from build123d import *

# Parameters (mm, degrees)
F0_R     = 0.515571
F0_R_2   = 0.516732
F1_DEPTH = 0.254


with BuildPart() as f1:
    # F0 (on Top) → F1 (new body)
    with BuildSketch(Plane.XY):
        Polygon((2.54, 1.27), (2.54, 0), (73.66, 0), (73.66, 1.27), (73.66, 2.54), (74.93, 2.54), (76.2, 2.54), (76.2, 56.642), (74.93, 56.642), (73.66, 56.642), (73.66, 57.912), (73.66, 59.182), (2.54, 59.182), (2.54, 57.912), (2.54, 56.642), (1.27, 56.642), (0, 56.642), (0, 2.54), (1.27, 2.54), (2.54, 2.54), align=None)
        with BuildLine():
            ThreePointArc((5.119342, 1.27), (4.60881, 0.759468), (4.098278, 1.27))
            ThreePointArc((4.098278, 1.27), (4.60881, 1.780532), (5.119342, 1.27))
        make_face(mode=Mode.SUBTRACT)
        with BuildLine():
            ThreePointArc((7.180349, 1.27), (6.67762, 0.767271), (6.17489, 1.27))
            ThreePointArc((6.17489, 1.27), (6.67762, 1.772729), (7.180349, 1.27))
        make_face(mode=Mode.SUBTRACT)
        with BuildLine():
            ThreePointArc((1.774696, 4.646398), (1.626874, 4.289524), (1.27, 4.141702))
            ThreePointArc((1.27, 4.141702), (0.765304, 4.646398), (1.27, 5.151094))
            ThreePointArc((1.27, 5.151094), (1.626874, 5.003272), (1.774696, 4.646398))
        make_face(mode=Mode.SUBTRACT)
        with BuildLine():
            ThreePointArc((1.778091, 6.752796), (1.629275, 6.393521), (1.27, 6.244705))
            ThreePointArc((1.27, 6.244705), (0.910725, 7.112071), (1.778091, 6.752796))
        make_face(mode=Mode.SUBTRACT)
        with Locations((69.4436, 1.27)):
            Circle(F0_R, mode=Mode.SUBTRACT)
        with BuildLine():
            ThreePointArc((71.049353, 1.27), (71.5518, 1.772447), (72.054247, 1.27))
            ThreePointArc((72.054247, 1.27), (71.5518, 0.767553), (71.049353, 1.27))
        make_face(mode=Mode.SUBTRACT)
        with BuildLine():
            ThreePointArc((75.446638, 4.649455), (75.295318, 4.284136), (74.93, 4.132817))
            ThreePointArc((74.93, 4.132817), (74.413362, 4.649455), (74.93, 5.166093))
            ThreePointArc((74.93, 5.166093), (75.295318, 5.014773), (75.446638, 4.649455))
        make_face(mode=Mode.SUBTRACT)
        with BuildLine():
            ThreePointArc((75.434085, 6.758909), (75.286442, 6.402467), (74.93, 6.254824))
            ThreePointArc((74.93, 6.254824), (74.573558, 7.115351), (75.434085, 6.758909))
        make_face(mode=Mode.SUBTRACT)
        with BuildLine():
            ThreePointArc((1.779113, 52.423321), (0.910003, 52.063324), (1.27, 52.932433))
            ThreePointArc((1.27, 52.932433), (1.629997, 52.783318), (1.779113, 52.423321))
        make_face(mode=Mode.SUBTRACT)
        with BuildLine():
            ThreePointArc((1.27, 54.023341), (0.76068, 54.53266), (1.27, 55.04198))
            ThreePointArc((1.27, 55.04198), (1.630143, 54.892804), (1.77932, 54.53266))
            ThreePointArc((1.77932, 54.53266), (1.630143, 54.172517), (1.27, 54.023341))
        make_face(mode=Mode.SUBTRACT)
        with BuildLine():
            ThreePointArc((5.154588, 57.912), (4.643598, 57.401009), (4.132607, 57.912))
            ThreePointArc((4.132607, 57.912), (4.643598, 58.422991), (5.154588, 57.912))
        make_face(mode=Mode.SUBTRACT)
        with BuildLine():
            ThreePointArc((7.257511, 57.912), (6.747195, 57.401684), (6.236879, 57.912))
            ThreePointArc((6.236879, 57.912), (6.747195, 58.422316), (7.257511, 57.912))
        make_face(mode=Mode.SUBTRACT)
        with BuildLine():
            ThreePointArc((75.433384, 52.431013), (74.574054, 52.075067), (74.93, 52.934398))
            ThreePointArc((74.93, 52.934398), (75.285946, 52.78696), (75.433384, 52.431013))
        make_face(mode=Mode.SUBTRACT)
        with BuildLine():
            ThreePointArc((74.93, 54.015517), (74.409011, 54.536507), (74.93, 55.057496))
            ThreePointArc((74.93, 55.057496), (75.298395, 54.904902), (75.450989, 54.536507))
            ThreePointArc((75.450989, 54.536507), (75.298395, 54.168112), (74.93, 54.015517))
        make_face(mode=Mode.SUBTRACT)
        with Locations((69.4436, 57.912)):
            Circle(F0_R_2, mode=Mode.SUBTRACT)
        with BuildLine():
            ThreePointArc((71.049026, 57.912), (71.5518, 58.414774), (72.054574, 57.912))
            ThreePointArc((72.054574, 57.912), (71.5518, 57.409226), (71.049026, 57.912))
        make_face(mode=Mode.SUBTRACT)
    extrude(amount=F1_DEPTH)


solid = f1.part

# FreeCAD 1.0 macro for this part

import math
import FreeCAD as App
import Part
import Sketcher
from FreeCAD import Vector
Q = App.Units.Quantity

doc = App.newDocument("Part")
body = doc.addObject("PartDesign::Body", "Body")

sketch1 = body.newObject("Sketcher::SketchObject", "Sketch")
sketch1.AttachmentSupport = (doc.getObject("XY_Plane"), [""])
sketch1.MapMode = "FlatFace"
sketch1.addGeometry([
    Part.LineSegment(Vector(2.5, 0, 0), Vector(73.7, 0, 0)),
    Part.LineSegment(Vector(73.7, 0, 0), Vector(73.7, 2.5, 0)),
    Part.LineSegment(Vector(73.7, 2.5, 0), Vector(76.2, 2.5, 0)),
    Part.LineSegment(Vector(76.2, 2.5, 0), Vector(76.2, 56.6, 0)),
    Part.LineSegment(Vector(76.2, 56.6, 0), Vector(73.7, 56.6, 0)),
    Part.LineSegment(Vector(73.7, 56.6, 0), Vector(73.7, 59.2, 0)),
    Part.LineSegment(Vector(73.7, 59.2, 0), Vector(2.5, 59.2, 0)),
    Part.LineSegment(Vector(2.5, 59.2, 0), Vector(2.5, 56.6, 0)),
    Part.LineSegment(Vector(2.5, 56.6, 0), Vector(0, 56.6, 0)),
    Part.LineSegment(Vector(0, 56.6, 0), Vector(0, 2.5, 0)),
    Part.LineSegment(Vector(0, 2.5, 0), Vector(2.5, 2.5, 0)),
    Part.LineSegment(Vector(2.5, 2.5, 0), Vector(2.5, 0, 0)),
    Part.Circle(Vector(4.6, 1.3, 0), Vector(0, 0, 1), 0.5),
    Part.ArcOfCircle(Part.Circle(Vector(6.7, 1.3, 0), Vector(0, 0, 1), 0.5), math.radians(0), math.radians(180)),
    Part.ArcOfCircle(Part.Circle(Vector(6.7, 1.3, 0), Vector(0, 0, 1), 0.5), math.radians(-180), math.radians(0)),
    Part.ArcOfCircle(Part.Circle(Vector(1.3, 4.6, 0), Vector(0, 0, 1), 0.5), math.radians(0), math.radians(90)),
    Part.ArcOfCircle(Part.Circle(Vector(1.3, 4.6, 0), Vector(0, 0, 1), 0.5), math.radians(-90), math.radians(0)),
    Part.ArcOfCircle(Part.Circle(Vector(1.3, 4.6, 0), Vector(0, 0, 1), 0.5), math.radians(90), math.radians(270)),
    Part.ArcOfCircle(Part.Circle(Vector(1.3, 6.8, 0), Vector(0, 0, 1), 0.5), math.radians(0), math.radians(270)),
    Part.ArcOfCircle(Part.Circle(Vector(1.3, 6.8, 0), Vector(0, 0, 1), 0.5), math.radians(-90), math.radians(0)),
    Part.Circle(Vector(69.4, 1.3, 0), Vector(0, 0, 1), 0.5),
    Part.Circle(Vector(71.6, 1.3, 0), Vector(0, 0, 1), 0.5),
    Part.ArcOfCircle(Part.Circle(Vector(74.9, 4.6, 0), Vector(0, 0, 1), 0.5), math.radians(0), math.radians(90)),
    Part.ArcOfCircle(Part.Circle(Vector(74.9, 4.6, 0), Vector(0, 0, 1), 0.5), math.radians(-90), math.radians(0)),
    Part.ArcOfCircle(Part.Circle(Vector(74.9, 4.6, 0), Vector(0, 0, 1), 0.5), math.radians(90), math.radians(270)),
    Part.ArcOfCircle(Part.Circle(Vector(74.9, 6.8, 0), Vector(0, 0, 1), 0.5), math.radians(0), math.radians(270)),
    Part.ArcOfCircle(Part.Circle(Vector(74.9, 6.8, 0), Vector(0, 0, 1), 0.5), math.radians(-90), math.radians(0)),
    Part.ArcOfCircle(Part.Circle(Vector(1.3, 52.4, 0), Vector(0, 0, 1), 0.5), math.radians(0), math.radians(90)),
    Part.ArcOfCircle(Part.Circle(Vector(1.3, 52.4, 0), Vector(0, 0, 1), 0.5), math.radians(90), math.radians(360)),
    Part.ArcOfCircle(Part.Circle(Vector(1.3, 54.5, 0), Vector(0, 0, 1), 0.5), math.radians(-90), math.radians(0)),
    Part.ArcOfCircle(Part.Circle(Vector(1.3, 54.5, 0), Vector(0, 0, 1), 0.5), math.radians(90), math.radians(270)),
    Part.ArcOfCircle(Part.Circle(Vector(1.3, 54.5, 0), Vector(0, 0, 1), 0.5), math.radians(0), math.radians(90)),
    Part.ArcOfCircle(Part.Circle(Vector(4.6, 57.9, 0), Vector(0, 0, 1), 0.5), math.radians(0), math.radians(180)),
    Part.ArcOfCircle(Part.Circle(Vector(4.6, 57.9, 0), Vector(0, 0, 1), 0.5), math.radians(180), math.radians(360)),
    Part.Circle(Vector(6.7, 57.9, 0), Vector(0, 0, 1), 0.5),
    Part.ArcOfCircle(Part.Circle(Vector(74.9, 52.4, 0), Vector(0, 0, 1), 0.5), math.radians(0), math.radians(90)),
    Part.ArcOfCircle(Part.Circle(Vector(74.9, 52.4, 0), Vector(0, 0, 1), 0.5), math.radians(90), math.radians(360)),
    Part.ArcOfCircle(Part.Circle(Vector(74.9, 54.5, 0), Vector(0, 0, 1), 0.5), math.radians(-90), math.radians(0)),
    Part.ArcOfCircle(Part.Circle(Vector(74.9, 54.5, 0), Vector(0, 0, 1), 0.5), math.radians(90), math.radians(270)),
    Part.ArcOfCircle(Part.Circle(Vector(74.9, 54.5, 0), Vector(0, 0, 1), 0.5), math.radians(0), math.radians(90)),
    Part.Circle(Vector(69.4, 57.9, 0), Vector(0, 0, 1), 0.5),
    Part.Circle(Vector(71.6, 57.9, 0), Vector(0, 0, 1), 0.5),
], False)
sketch1.addConstraint([
    Sketcher.Constraint("Coincident", 0, 2, 1, 1),
    Sketcher.Constraint("Coincident", 1, 2, 2, 1),
    Sketcher.Constraint("Coincident", 2, 2, 3, 1),
    Sketcher.Constraint("Coincident", 3, 2, 4, 1),
    Sketcher.Constraint("Coincident", 4, 2, 5, 1),
    Sketcher.Constraint("Coincident", 5, 2, 6, 1),
    Sketcher.Constraint("Coincident", 6, 2, 7, 1),
    Sketcher.Constraint("Coincident", 7, 2, 8, 1),
    Sketcher.Constraint("Coincident", 8, 2, 9, 1),
    Sketcher.Constraint("Coincident", 9, 2, 10, 1),
    Sketcher.Constraint("Coincident", 10, 2, 11, 1),
    Sketcher.Constraint("Coincident", 11, 2, 0, 1),
    Sketcher.Constraint("Tangent", 13, 1, 14, 2),
    Sketcher.Constraint("Coincident", 14, 1, 13, 2),
    Sketcher.Constraint("Tangent", 15, 1, 16, 2),
    Sketcher.Constraint("Tangent", 16, 1, 17, 2),
    Sketcher.Constraint("Tangent", 17, 1, 15, 2),
    Sketcher.Constraint("Coincident", 18, 1, 19, 2),
    Sketcher.Constraint("Coincident", 19, 1, 18, 2),
    Sketcher.Constraint("Tangent", 22, 1, 23, 2),
    Sketcher.Constraint("Tangent", 23, 1, 24, 2),
    Sketcher.Constraint("Tangent", 24, 1, 22, 2),
    Sketcher.Constraint("Tangent", 25, 1, 26, 2),
    Sketcher.Constraint("Coincident", 26, 1, 25, 2),
    Sketcher.Constraint("Tangent", 27, 1, 28, 2),
    Sketcher.Constraint("Coincident", 28, 1, 27, 2),
    Sketcher.Constraint("Tangent", 29, 1, 30, 2),
    Sketcher.Constraint("Tangent", 30, 1, 31, 2),
    Sketcher.Constraint("Coincident", 31, 1, 29, 2),
    Sketcher.Constraint("Tangent", 32, 1, 33, 2),
    Sketcher.Constraint("Coincident", 33, 1, 32, 2),
    Sketcher.Constraint("Tangent", 35, 1, 36, 2),
    Sketcher.Constraint("Coincident", 36, 1, 35, 2),
    Sketcher.Constraint("Coincident", 37, 1, 38, 2),
    Sketcher.Constraint("Tangent", 38, 1, 39, 2),
    Sketcher.Constraint("Tangent", 39, 1, 37, 2),
    Sketcher.Constraint("Horizontal", 0),
    Sketcher.Constraint("Vertical", 1),
    Sketcher.Constraint("Horizontal", 2),
    Sketcher.Constraint("Vertical", 3),
    Sketcher.Constraint("Horizontal", 4),
    Sketcher.Constraint("Vertical", 5),
    Sketcher.Constraint("Horizontal", 6),
    Sketcher.Constraint("Vertical", 7),
    Sketcher.Constraint("Horizontal", 8),
    Sketcher.Constraint("Vertical", 9),
    Sketcher.Constraint("Horizontal", 10),
    Sketcher.Constraint("Vertical", 11),
    Sketcher.Constraint("Equal", 18, 19),
    Sketcher.Constraint("Equal", 29, 30),
    Sketcher.Constraint("Equal", 37, 38),
    Sketcher.Constraint("PointOnObject", 0, 2, -1),
    Sketcher.Constraint("PointOnObject", 8, 2, -2),
    Sketcher.Constraint("Horizontal", 12, 3, 13, 3),
    Sketcher.Constraint("Horizontal", 14, 3, 20, 3),
    Sketcher.Constraint("Horizontal", 20, 3, 21, 3),
    Sketcher.Constraint("Horizontal", 33, 3, 34, 3),
    Sketcher.Constraint("Horizontal", 34, 3, 40, 3),
    Sketcher.Constraint("Horizontal", 40, 3, 41, 3),
    Sketcher.Constraint("Horizontal", 4, 2, 7, 2),
    Sketcher.Constraint("Horizontal", 2, 2, 9, 2),
    Sketcher.Constraint("Horizontal", 21, 3, 13, 1),
    Sketcher.Constraint("Horizontal", 13, 1, 14, 1),
    Sketcher.Constraint("Horizontal", 17, 3, 15, 1),
    Sketcher.Constraint("Horizontal", 19, 3, 18, 1),
    Sketcher.Constraint("Horizontal", 24, 3, 22, 1),
    Sketcher.Constraint("Horizontal", 26, 3, 25, 1),
    Sketcher.Constraint("Horizontal", 28, 3, 27, 1),
    Sketcher.Constraint("Horizontal", 30, 3, 31, 1),
    Sketcher.Constraint("Horizontal", 41, 3, 32, 1),
    Sketcher.Constraint("Horizontal", 32, 1, 33, 1),
    Sketcher.Constraint("Horizontal", 36, 3, 35, 1),
    Sketcher.Constraint("Horizontal", 38, 3, 39, 1),
    Sketcher.Constraint("Vertical", 17, 3, 18, 3),
    Sketcher.Constraint("Vertical", 24, 3, 25, 3),
    Sketcher.Constraint("Vertical", 19, 3, 27, 3),
    Sketcher.Constraint("Vertical", 28, 3, 29, 3),
    Sketcher.Constraint("Vertical", 26, 3, 35, 3),
    Sketcher.Constraint("Vertical", 36, 3, 37, 3),
    Sketcher.Constraint("Vertical", 20, 3, 40, 3),
    Sketcher.Constraint("Vertical", 21, 3, 41, 3),
    Sketcher.Constraint("Vertical", 1, 2, 4, 2),
    Sketcher.Constraint("Vertical", 7, 2, 10, 2),
    Sketcher.Constraint("Vertical", 31, 3, 16, 1),
    Sketcher.Constraint("Vertical", 16, 1, 17, 1),
    Sketcher.Constraint("Vertical", 17, 1, 19, 1),
    Sketcher.Constraint("Vertical", 39, 3, 23, 1),
    Sketcher.Constraint("Vertical", 23, 1, 24, 1),
    Sketcher.Constraint("Vertical", 24, 1, 26, 1),
    Sketcher.Constraint("Vertical", 19, 1, 28, 1),
    Sketcher.Constraint("Vertical", 28, 1, 29, 1),
    Sketcher.Constraint("Vertical", 29, 1, 30, 1),
    Sketcher.Constraint("Vertical", 26, 1, 36, 1),
    Sketcher.Constraint("Vertical", 36, 1, 37, 1),
    Sketcher.Constraint("Vertical", 37, 1, 38, 1),
    Sketcher.Constraint("Equal", 4, 8),
    Sketcher.Constraint("Equal", 10, 1),
    Sketcher.Constraint("Equal", 1, 5),
    Sketcher.Constraint("DistanceX", 0, 1, 0, 2, Q("2.8 in")),
    Sketcher.Constraint("DistanceX", 2, 1, 2, 2, Q("0.1 in")),
    Sketcher.Constraint("DistanceY", 3, 1, 3, 2, Q("2.13 in")),
    Sketcher.Constraint("DistanceY", -1, 1, 12, 3, Q("0.05 in")),
    Sketcher.Constraint("DistanceX", -1, 1, 15, 3, Q("0.05 in")),
    Sketcher.Constraint("DistanceX", -1, 1, 22, 3, Q("2.95 in")),
    Sketcher.Constraint("DistanceY", -1, 1, 32, 3, Q("2.28 in")),
    Sketcher.Constraint("Diameter", 41, 1.005548),
    Sketcher.Constraint("DistanceX", -1, 1, 20, 3, Q("2.734 in")),
    Sketcher.Constraint("DistanceX", -1, 1, 21, 3, Q("2.817 in")),
    Sketcher.Constraint("Radius", 13, 0.50273),
    Sketcher.Constraint("Radius", 18, 0.508091),
    Sketcher.Constraint("Radius", 22, 0.516639),
    Sketcher.Constraint("Radius", 29, 0.50932),
    Sketcher.Constraint("Radius", 32, 0.510991),
    Sketcher.Constraint("Radius", 37, 0.52099),
    Sketcher.Constraint("Diameter", 12, 1.021064),
    Sketcher.Constraint("Diameter", 20, 1.031142),
    Sketcher.Constraint("Diameter", 21, 1.004894),
    Sketcher.Constraint("Diameter", 34, 1.020632),
    Sketcher.Constraint("Diameter", 40, 1.033464),
    Sketcher.Constraint("Radius", 15, 0.504696),
    Sketcher.Constraint("Radius", 25, 0.504085),
    Sketcher.Constraint("Radius", 27, 0.509112),
    Sketcher.Constraint("Radius", 35, 0.503385),
    Sketcher.Constraint("DistanceY", -1, 1, 15, 3, 4.646398),
    Sketcher.Constraint("DistanceX", -1, 1, 12, 3, 4.60881),
    Sketcher.Constraint("DistanceX", -1, 1, 13, 3, 6.677619),
    Sketcher.Constraint("DistanceY", -1, 1, 25, 3, 6.758909),
    Sketcher.Constraint("DistanceY", -1, 1, 27, 3, 52.423321),
    Sketcher.Constraint("DistanceY", -1, 1, 29, 3, 54.532661),
    Sketcher.Constraint("DistanceY", -1, 1, 18, 3, 6.752796),
    Sketcher.Constraint("DistanceY", -1, 1, 22, 3, 4.649454),
    Sketcher.Constraint("DistanceX", -1, 1, 32, 3, 4.643598),
    Sketcher.Constraint("DistanceX", -1, 1, 34, 3, 6.747195),
    Sketcher.Constraint("DistanceY", -1, 1, 35, 3, 52.431013),
    Sketcher.Constraint("DistanceY", -1, 1, 37, 3, 54.536507),
])
pad1 = body.newObject("PartDesign::Pad", "Pad")
pad1.Profile = sketch1
pad1.Length = Q("0.01 in")

doc.recompute()
